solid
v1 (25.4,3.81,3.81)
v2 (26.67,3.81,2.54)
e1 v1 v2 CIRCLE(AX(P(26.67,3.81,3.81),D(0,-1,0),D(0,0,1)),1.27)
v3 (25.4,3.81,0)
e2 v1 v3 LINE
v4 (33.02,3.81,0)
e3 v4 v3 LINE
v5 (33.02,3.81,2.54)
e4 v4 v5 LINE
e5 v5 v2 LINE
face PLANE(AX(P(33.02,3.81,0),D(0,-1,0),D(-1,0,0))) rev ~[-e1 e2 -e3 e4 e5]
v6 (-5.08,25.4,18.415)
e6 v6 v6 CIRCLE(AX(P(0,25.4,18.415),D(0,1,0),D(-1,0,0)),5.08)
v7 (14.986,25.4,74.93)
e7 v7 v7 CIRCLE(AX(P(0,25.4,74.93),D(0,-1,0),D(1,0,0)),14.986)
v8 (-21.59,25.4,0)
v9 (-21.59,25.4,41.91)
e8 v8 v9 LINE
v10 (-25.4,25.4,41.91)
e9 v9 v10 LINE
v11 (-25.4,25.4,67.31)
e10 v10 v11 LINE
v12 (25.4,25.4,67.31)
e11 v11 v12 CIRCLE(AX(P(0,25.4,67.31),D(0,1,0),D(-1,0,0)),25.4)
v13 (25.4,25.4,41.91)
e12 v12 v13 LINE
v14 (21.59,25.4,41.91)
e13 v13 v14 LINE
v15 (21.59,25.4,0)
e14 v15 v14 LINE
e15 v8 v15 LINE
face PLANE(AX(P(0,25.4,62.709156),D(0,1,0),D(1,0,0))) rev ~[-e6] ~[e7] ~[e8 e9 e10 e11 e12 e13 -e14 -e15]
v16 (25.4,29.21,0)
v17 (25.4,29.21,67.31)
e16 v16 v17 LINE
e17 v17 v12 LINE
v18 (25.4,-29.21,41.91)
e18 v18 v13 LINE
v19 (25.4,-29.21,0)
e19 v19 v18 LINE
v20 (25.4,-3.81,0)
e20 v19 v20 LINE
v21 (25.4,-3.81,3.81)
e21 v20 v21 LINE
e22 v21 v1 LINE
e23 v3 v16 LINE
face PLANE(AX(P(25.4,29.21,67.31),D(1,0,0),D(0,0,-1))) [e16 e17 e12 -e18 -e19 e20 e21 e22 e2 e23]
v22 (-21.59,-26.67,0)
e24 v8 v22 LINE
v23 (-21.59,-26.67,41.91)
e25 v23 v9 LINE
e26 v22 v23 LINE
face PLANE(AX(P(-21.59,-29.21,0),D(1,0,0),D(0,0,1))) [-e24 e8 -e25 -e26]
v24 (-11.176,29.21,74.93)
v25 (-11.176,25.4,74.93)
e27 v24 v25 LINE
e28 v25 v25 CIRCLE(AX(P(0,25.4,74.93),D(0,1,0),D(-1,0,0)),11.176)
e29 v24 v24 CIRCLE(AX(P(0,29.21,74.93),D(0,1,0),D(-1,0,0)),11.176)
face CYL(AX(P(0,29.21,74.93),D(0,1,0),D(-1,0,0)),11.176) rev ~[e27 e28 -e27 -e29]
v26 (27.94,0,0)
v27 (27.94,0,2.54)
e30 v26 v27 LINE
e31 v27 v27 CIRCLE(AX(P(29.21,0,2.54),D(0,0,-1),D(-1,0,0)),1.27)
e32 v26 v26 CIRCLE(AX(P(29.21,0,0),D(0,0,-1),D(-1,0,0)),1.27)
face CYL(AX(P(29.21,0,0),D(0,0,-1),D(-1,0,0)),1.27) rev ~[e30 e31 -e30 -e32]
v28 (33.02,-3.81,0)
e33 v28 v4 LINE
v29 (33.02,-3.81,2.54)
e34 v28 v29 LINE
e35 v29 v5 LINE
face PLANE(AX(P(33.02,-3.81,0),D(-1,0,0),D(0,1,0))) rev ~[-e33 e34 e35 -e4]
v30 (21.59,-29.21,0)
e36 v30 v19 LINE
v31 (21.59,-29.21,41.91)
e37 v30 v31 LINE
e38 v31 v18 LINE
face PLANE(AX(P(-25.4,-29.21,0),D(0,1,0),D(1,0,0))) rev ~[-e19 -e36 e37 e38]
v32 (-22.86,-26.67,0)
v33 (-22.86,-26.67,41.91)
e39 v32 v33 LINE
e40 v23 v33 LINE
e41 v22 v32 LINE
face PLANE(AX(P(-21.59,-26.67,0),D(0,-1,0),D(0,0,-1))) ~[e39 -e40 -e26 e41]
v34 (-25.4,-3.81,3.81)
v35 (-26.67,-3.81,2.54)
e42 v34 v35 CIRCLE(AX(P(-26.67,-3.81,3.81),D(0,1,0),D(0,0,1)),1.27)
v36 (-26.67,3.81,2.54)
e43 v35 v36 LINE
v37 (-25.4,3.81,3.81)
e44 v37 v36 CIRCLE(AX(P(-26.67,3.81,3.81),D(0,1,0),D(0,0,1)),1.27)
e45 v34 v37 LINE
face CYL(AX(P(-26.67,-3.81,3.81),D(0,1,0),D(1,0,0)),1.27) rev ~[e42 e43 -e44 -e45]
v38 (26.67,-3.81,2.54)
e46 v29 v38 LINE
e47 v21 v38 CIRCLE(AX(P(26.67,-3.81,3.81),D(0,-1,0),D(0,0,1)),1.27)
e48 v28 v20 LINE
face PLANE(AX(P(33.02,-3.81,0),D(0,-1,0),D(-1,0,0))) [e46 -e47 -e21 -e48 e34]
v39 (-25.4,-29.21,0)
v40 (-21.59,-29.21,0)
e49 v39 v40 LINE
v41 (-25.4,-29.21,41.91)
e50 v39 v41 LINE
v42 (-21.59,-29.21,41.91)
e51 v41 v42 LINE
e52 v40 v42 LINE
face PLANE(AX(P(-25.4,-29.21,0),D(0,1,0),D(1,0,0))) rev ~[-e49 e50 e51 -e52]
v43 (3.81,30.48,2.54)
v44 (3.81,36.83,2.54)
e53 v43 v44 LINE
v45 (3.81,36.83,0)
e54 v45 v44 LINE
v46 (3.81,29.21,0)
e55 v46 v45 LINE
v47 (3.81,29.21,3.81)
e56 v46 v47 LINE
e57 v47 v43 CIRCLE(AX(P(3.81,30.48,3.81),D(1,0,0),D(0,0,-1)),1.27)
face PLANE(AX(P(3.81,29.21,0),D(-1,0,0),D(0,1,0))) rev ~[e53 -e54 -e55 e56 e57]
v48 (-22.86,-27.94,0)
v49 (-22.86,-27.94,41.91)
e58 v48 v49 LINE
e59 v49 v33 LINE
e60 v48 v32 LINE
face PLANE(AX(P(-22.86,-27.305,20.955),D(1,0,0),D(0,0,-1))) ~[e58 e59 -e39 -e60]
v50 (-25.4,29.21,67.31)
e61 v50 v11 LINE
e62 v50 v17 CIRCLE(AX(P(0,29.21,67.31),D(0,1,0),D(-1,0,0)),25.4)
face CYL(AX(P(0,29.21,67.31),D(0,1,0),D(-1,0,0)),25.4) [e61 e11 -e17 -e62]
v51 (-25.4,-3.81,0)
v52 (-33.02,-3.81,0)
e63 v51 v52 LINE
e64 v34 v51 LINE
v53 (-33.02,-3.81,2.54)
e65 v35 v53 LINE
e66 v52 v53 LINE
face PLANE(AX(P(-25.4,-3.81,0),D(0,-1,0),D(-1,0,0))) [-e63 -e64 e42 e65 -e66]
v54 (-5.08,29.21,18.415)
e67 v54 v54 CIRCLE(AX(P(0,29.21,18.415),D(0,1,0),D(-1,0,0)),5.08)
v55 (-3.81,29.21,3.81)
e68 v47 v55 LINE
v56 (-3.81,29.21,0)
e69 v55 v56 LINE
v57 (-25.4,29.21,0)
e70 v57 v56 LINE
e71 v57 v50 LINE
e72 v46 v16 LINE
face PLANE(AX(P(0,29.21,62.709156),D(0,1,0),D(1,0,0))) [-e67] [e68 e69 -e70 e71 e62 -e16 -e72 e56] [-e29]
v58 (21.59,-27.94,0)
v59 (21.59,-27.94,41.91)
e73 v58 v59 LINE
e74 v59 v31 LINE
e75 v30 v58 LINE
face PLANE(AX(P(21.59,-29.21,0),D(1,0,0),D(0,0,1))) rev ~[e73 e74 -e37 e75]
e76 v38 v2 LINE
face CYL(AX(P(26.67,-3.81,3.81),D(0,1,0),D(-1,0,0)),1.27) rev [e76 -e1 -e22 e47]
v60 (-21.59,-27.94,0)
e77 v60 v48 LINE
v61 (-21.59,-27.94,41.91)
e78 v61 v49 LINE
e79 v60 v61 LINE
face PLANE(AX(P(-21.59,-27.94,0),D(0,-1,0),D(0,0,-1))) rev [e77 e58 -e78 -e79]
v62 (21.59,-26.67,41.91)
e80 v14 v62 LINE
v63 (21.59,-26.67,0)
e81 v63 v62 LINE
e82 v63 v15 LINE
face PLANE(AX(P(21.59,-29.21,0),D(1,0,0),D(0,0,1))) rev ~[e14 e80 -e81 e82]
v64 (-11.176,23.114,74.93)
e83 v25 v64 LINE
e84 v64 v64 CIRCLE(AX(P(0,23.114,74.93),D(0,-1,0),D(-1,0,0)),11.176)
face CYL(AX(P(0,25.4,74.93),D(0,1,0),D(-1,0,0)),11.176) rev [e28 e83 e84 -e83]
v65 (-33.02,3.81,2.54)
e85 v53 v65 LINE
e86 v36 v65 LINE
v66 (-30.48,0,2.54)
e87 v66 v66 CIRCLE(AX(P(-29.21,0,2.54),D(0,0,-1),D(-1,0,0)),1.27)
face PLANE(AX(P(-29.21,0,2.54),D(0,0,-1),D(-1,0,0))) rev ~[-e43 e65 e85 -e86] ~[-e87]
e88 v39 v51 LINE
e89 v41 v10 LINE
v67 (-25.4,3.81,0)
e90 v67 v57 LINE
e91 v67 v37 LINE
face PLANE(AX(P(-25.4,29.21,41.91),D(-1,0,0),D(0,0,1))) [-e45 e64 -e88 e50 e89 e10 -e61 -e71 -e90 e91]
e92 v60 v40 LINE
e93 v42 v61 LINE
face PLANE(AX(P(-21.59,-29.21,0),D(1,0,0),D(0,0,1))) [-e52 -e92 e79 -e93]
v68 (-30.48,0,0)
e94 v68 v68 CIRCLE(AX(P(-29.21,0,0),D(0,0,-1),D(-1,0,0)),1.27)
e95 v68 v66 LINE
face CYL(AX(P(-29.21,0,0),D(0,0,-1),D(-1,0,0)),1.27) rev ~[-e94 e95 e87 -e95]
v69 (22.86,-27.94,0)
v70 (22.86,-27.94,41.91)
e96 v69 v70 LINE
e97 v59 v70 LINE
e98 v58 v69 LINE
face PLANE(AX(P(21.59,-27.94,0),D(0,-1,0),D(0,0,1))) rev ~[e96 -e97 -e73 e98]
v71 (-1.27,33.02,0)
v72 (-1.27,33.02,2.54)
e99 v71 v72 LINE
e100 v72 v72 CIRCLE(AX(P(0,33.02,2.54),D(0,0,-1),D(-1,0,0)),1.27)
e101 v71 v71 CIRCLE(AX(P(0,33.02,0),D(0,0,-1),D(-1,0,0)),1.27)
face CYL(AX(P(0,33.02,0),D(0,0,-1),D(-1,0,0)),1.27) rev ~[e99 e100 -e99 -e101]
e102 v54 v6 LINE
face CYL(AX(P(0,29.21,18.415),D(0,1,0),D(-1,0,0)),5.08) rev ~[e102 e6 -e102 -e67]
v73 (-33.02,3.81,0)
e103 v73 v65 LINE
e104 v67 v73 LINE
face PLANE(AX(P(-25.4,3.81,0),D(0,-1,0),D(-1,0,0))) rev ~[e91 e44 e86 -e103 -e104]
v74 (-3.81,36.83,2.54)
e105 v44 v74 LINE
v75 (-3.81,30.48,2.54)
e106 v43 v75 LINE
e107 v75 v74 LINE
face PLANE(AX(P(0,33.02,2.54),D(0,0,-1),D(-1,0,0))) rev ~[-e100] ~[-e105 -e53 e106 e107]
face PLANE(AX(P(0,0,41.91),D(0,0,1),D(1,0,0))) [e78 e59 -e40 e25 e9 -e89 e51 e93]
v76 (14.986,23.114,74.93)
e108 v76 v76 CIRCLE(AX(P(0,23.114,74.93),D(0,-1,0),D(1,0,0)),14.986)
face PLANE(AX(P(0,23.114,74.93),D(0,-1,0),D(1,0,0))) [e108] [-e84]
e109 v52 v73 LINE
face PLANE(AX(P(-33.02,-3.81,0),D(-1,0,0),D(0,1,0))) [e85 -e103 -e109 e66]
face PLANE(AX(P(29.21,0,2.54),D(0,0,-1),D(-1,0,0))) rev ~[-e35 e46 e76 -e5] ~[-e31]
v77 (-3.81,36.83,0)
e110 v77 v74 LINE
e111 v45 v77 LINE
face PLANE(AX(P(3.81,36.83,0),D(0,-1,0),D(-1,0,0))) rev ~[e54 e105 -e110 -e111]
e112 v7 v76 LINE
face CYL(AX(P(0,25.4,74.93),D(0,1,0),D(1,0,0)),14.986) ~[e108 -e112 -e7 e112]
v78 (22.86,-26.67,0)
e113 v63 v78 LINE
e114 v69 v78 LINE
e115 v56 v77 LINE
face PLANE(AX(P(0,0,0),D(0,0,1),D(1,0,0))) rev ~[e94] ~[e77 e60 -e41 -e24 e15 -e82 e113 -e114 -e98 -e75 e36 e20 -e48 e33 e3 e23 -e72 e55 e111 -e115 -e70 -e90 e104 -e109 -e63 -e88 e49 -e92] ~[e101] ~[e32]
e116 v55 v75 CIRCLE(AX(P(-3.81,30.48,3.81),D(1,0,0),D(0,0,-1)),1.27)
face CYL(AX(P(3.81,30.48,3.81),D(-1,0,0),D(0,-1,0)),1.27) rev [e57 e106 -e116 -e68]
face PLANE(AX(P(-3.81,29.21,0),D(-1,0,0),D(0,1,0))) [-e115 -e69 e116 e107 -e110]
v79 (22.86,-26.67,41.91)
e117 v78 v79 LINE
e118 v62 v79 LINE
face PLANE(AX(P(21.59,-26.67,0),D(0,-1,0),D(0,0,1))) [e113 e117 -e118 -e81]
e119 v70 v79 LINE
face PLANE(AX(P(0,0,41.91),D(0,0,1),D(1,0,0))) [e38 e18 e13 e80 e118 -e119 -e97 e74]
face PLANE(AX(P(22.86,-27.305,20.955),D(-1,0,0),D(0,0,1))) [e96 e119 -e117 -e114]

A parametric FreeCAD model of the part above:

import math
import FreeCAD as App
import Part
import Sketcher
Q = App.Units.Quantity


def edges_at(feature, points):
    """Names of the edges that pass closest to the given points."""
    edges = feature.Shape.Edges
    near = lambda p: min(range(len(edges)), key=lambda i: edges[i].distToShape(Part.Vertex(*p))[0])
    return sorted({f"Edge{near(p) + 1}" for p in points})


def add_polygon(sketch, points):
    """Adds a closed chain of lines whose ends are joined by coincident constraints."""
    first, n = sketch.GeometryCount, len(points)
    for a, b in zip(points, points[1:] + points[:1]):
        sketch.addGeometry(Part.LineSegment(App.Vector(*a, 0), App.Vector(*b, 0)), False)
    for i in range(n):
        sketch.addConstraint(Sketcher.Constraint("Coincident", first + i, 2, first + (i + 1) % n, 1))

doc = App.newDocument("Part")
body = doc.addObject("PartDesign::Body", "Body")

# Sketch on XY plane
sketch1 = body.newObject("Sketcher::SketchObject", "Sketch")
sketch1.AttachmentSupport = (doc.getObject("XY_Plane"), [""])
sketch1.MapMode = "FlatFace"
add_polygon(sketch1, [(-25.4, 29.21), (-25.4, -29.21), (25.4, -29.21), (25.4, 29.21)])  # lines 0-3
add_polygon(sketch1, [(21.59, -25.4), (-21.59, -25.4), (-21.59, 25.4), (21.59, 25.4)])  # lines 4-7
sketch1.addConstraint([
    Sketcher.Constraint("Vertical", 0),
    Sketcher.Constraint("Horizontal", 1),
    Sketcher.Constraint("Vertical", 2),
    Sketcher.Constraint("Horizontal", 3),
    Sketcher.Constraint("Horizontal", 4),
    Sketcher.Constraint("Vertical", 5),
    Sketcher.Constraint("Horizontal", 6),
    Sketcher.Constraint("Vertical", 7),
    Sketcher.Constraint("Symmetric", 0, 2, 2, 2, -1, 1),
    Sketcher.Constraint("Symmetric", 4, 2, 6, 2, -1, 1),
    Sketcher.Constraint("Equal", 3, 5),
    Sketcher.Constraint("DistanceX", 1, 1, 1, 2, Q("2 in")),
    Sketcher.Constraint("DistanceX", 4, 2, 4, 1, Q("1.7 in")),
    Sketcher.Constraint("DistanceY", 0, 2, 0, 1, Q("2.3 in")),
])
pad1 = body.newObject("PartDesign::Pad", "Pad")
pad1.Profile = sketch1
pad1.Length = Q("1.65 in")

# Sketch on XZ plane
sketch2 = body.newObject("Sketcher::SketchObject", "Sketch001")
sketch2.AttachmentSupport = (doc.getObject("XZ_Plane"), [""])
sketch2.MapMode = "FlatFace"
sketch2.AttachmentOffset = App.Placement(App.Vector(0, 0, -1.15 * 25.4), App.Rotation())
sketch2.addGeometry(Part.Circle(App.Vector(0, 18.415, 0), App.Vector(0, 0, 1), 5.08), False)
sketch2.addConstraint([
    Sketcher.Constraint("PointOnObject", 0, 3, -2),
    Sketcher.Constraint("Diameter", 0, Q("0.4 in")),
    Sketcher.Constraint("DistanceY", -1, 1, 0, 3, Q("0.725 in")),
])
pocket1 = body.newObject("PartDesign::Pocket", "Pocket")
pocket1.Profile = sketch2
pocket1.Length = Q("0.2 in")
pocket1.Reversed = True

# Sketch on XZ plane
sketch3 = body.newObject("Sketcher::SketchObject", "Sketch002")
sketch3.AttachmentSupport = (doc.getObject("XZ_Plane"), [""])
sketch3.MapMode = "FlatFace"
sketch3.AttachmentOffset = App.Placement(App.Vector(0, 0, 1.15 * 25.4), App.Rotation())
add_polygon(sketch3, [(-21.59, 41.91), (-21.59, 0), (21.59, 0), (21.59, 41.91)])  # lines 0-3
sketch3.addConstraint([
    Sketcher.Constraint("Vertical", 0),
    Sketcher.Constraint("Horizontal", 1),
    Sketcher.Constraint("Vertical", 2),
    Sketcher.Constraint("Horizontal", 3),
    Sketcher.Constraint("Symmetric", 0, 2, 1, 2, -1, 1),
    Sketcher.Constraint("DistanceX", 1, 1, 1, 2, Q("1.7 in")),
    Sketcher.Constraint("DistanceY", 0, 2, 0, 1, Q("1.65 in")),
])
pocket2 = body.newObject("PartDesign::Pocket", "Pocket001")
pocket2.Profile = sketch3
pocket2.Length = Q("0.2 in")

# Sketch on XY plane
sketch4 = body.newObject("Sketcher::SketchObject", "Sketch003")
sketch4.AttachmentSupport = (doc.getObject("XY_Plane"), [""])
sketch4.MapMode = "FlatFace"
add_polygon(sketch4, [(-25.4, 3.81), (-25.4, -3.81), (-33.02, -3.81), (-33.02, 3.81)])  # lines 0-3
sketch4.addGeometry(Part.Circle(App.Vector(-29.21, 0, 0), App.Vector(0, 0, 1), 1.27), False)  # 4
add_polygon(sketch4, [(33.02, 3.81), (33.02, -3.81), (25.4, -3.81), (25.4, 3.81)])  # lines 5-8
sketch4.addGeometry(Part.Circle(App.Vector(29.21, 0, 0), App.Vector(0, 0, 1), 1.27), False)  # 9
add_polygon(sketch4, [(3.81, 36.83), (3.81, 29.21), (-3.81, 29.21), (-3.81, 36.83)])  # lines 10-13
sketch4.addGeometry(Part.Circle(App.Vector(0, 33.02, 0), App.Vector(0, 0, 1), 1.27), False)  # 14
sketch4.addConstraint([
    Sketcher.Constraint("Vertical", 0),
    Sketcher.Constraint("Horizontal", 1),
    Sketcher.Constraint("Vertical", 2),
    Sketcher.Constraint("Horizontal", 3),
    Sketcher.Constraint("Vertical", 5),
    Sketcher.Constraint("Horizontal", 6),
    Sketcher.Constraint("Vertical", 7),
    Sketcher.Constraint("Horizontal", 8),
    Sketcher.Constraint("Vertical", 10),
    Sketcher.Constraint("Horizontal", 11),
    Sketcher.Constraint("Vertical", 12),
    Sketcher.Constraint("Horizontal", 13),
    Sketcher.Constraint("Equal", 4, 9),
    Sketcher.Constraint("Equal", 9, 14),
    Sketcher.Constraint("Symmetric", 4, 3, 9, 3, -1, 1),
    Sketcher.Constraint("Symmetric", 2, 2, 5, 2, -1, 1),
    Sketcher.Constraint("Symmetric", 0, 2, 7, 2, -1, 1),
    Sketcher.Constraint("PointOnObject", 4, 3, -1),
    Sketcher.Constraint("PointOnObject", 14, 3, -2),
    Sketcher.Constraint("Horizontal", 1, 2, 5, 2),
    Sketcher.Constraint("Equal", 8, 11),
    Sketcher.Constraint("Equal", 13, 0),
    Sketcher.Constraint("Equal", 7, 10),
    Sketcher.Constraint("Diameter", 4, Q("0.1 in")),
    Sketcher.Constraint("DistanceX", 1, 2, 1, 1, Q("0.3 in")),
    Sketcher.Constraint("DistanceX", 0, 2, -1, 1, Q("1 in")),
    Sketcher.Constraint("DistanceY", 7, 2, 10, 2, Q("1 in")),
    Sketcher.Constraint("DistanceX", 10, 2, 9, 3, Q("1 in")),
    Sketcher.Constraint("DistanceX", 4, 3, 11, 2, Q("1 in")),
    Sketcher.Constraint("DistanceY", -1, 1, 14, 3, Q("1.3 in")),
])
pad2 = body.newObject("PartDesign::Pad", "Pad001")
pad2.Profile = sketch4
pad2.Length = Q("0.1 in")

# Sketch on YZ plane
sketch5 = body.newObject("Sketcher::SketchObject", "Sketch004")
sketch5.AttachmentSupport = (doc.getObject("YZ_Plane"), [""])
sketch5.MapMode = "FlatFace"
sketch5.AttachmentOffset = App.Placement(App.Vector(0, 0, 0.85 * 25.4), App.Rotation())
add_polygon(sketch5, [(-26.67, 0), (-27.94, 0), (-27.94, 41.91), (-26.67, 41.91)])  # lines 0-3
sketch5.addConstraint([
    Sketcher.Constraint("Horizontal", 0),
    Sketcher.Constraint("Vertical", 1),
    Sketcher.Constraint("Horizontal", 2),
    Sketcher.Constraint("Vertical", 3),
    Sketcher.Constraint("PointOnObject", 0, 2, -1),
    Sketcher.Constraint("DistanceX", 0, 2, 0, 1, Q("0.05 in")),
    Sketcher.Constraint("DistanceY", 1, 1, 1, 2, Q("1.65 in")),
    Sketcher.Constraint("DistanceX", 0, 2, -1, 1, Q("1.1 in")),
])
pocket3 = body.newObject("PartDesign::Pocket", "Pocket002")
pocket3.Profile = sketch5
pocket3.Length = Q("0.05 in")
pocket3.Reversed = True
doc.recompute()

mirrored = body.newObject("PartDesign::Mirrored", "Mirrored")
mirrored.Originals = [pocket3]
mirrored.MirrorPlane = (doc.getObject("YZ_Plane"), [""])
body.Tip = mirrored

# Sketch on XZ plane
sketch6 = body.newObject("Sketcher::SketchObject", "Sketch005")
sketch6.AttachmentSupport = (doc.getObject("XZ_Plane"), [""])
sketch6.MapMode = "FlatFace"
sketch6.AttachmentOffset = App.Placement(App.Vector(0, 0, -1.15 * 25.4), App.Rotation())
sketch6.addGeometry([
    Part.LineSegment(App.Vector(25.4, 67.31, 0), App.Vector(25.4, 41.91, 0)),  # 0
    Part.LineSegment(App.Vector(25.4, 41.91, 0), App.Vector(-25.4, 41.91, 0)),  # 1
    Part.LineSegment(App.Vector(-25.4, 41.91, 0), App.Vector(-25.4, 67.31, 0)),  # 2
    Part.ArcOfCircle(Part.Circle(App.Vector(0, 67.31, 0), App.Vector(0, 0, 1), 25.4), math.radians(0), math.radians(180)),  # 3
    Part.Circle(App.Vector(0, 74.93, 0), App.Vector(0, 0, 1), 11.176),  # 4
], False)
sketch6.addConstraint([
    Sketcher.Constraint("Coincident", 0, 2, 1, 1),
    Sketcher.Constraint("Coincident", 1, 2, 2, 1),
    Sketcher.Constraint("Tangent", 2, 2, 3, 2),
    Sketcher.Constraint("Tangent", 3, 1, 0, 1),
    Sketcher.Constraint("Vertical", 0),
    Sketcher.Constraint("Horizontal", 1),
    Sketcher.Constraint("Vertical", 2),
    Sketcher.Constraint("PointOnObject", 3, 3, -2),
    Sketcher.Constraint("PointOnObject", 4, 3, -2),
    Sketcher.Constraint("Radius", 3, Q("1 in")),
    Sketcher.Constraint("Diameter", 4, Q("0.88 in")),
    Sketcher.Constraint("DistanceY", 0, 2, 0, 1, Q("1 in")),
    Sketcher.Constraint("DistanceY", 3, 3, 4, 3, Q("0.3 in")),
    Sketcher.Constraint("DistanceY", -1, 1, 3, 3, Q("2.65 in")),
])
pad3 = body.newObject("PartDesign::Pad", "Pad002")
pad3.Profile = sketch6
pad3.Length = Q("0.15 in")
doc.recompute()

fillet = body.newObject("PartDesign::Fillet", "Fillet")
fillet.Base = (pad3, edges_at(pad3, [(-25.4, 0, 2.54), (25.4, 0, 2.54), (0, 29.21, 2.54)]))
fillet.Radius = Q("0.05 in")

# Sketch on XZ plane
sketch7 = body.newObject("Sketcher::SketchObject", "Sketch006")
sketch7.AttachmentSupport = (doc.getObject("XZ_Plane"), [""])
sketch7.MapMode = "FlatFace"
sketch7.AttachmentOffset = App.Placement(App.Vector(0, 0, -1 * 25.4), App.Rotation())
sketch7.addGeometry([
    Part.Circle(App.Vector(0, 74.93, 0), App.Vector(0, 0, 1), 14.986),
    Part.Circle(App.Vector(0, 74.93, 0), App.Vector(0, 0, 1), 11.176),
], False)
sketch7.addConstraint([
    Sketcher.Constraint("Coincident", 1, 3, 0, 3),
    Sketcher.Constraint("PointOnObject", 0, 3, -2),
    Sketcher.Constraint("Diameter", 0, Q("1.18 in")),
    Sketcher.Constraint("Diameter", 1, Q("0.88 in")),
    Sketcher.Constraint("DistanceY", -1, 1, 0, 3, Q("2.95 in")),
])
pad4 = body.newObject("PartDesign::Pad", "Pad003")
pad4.Profile = sketch7
pad4.Length = Q("0.09 in")

doc.recompute()
